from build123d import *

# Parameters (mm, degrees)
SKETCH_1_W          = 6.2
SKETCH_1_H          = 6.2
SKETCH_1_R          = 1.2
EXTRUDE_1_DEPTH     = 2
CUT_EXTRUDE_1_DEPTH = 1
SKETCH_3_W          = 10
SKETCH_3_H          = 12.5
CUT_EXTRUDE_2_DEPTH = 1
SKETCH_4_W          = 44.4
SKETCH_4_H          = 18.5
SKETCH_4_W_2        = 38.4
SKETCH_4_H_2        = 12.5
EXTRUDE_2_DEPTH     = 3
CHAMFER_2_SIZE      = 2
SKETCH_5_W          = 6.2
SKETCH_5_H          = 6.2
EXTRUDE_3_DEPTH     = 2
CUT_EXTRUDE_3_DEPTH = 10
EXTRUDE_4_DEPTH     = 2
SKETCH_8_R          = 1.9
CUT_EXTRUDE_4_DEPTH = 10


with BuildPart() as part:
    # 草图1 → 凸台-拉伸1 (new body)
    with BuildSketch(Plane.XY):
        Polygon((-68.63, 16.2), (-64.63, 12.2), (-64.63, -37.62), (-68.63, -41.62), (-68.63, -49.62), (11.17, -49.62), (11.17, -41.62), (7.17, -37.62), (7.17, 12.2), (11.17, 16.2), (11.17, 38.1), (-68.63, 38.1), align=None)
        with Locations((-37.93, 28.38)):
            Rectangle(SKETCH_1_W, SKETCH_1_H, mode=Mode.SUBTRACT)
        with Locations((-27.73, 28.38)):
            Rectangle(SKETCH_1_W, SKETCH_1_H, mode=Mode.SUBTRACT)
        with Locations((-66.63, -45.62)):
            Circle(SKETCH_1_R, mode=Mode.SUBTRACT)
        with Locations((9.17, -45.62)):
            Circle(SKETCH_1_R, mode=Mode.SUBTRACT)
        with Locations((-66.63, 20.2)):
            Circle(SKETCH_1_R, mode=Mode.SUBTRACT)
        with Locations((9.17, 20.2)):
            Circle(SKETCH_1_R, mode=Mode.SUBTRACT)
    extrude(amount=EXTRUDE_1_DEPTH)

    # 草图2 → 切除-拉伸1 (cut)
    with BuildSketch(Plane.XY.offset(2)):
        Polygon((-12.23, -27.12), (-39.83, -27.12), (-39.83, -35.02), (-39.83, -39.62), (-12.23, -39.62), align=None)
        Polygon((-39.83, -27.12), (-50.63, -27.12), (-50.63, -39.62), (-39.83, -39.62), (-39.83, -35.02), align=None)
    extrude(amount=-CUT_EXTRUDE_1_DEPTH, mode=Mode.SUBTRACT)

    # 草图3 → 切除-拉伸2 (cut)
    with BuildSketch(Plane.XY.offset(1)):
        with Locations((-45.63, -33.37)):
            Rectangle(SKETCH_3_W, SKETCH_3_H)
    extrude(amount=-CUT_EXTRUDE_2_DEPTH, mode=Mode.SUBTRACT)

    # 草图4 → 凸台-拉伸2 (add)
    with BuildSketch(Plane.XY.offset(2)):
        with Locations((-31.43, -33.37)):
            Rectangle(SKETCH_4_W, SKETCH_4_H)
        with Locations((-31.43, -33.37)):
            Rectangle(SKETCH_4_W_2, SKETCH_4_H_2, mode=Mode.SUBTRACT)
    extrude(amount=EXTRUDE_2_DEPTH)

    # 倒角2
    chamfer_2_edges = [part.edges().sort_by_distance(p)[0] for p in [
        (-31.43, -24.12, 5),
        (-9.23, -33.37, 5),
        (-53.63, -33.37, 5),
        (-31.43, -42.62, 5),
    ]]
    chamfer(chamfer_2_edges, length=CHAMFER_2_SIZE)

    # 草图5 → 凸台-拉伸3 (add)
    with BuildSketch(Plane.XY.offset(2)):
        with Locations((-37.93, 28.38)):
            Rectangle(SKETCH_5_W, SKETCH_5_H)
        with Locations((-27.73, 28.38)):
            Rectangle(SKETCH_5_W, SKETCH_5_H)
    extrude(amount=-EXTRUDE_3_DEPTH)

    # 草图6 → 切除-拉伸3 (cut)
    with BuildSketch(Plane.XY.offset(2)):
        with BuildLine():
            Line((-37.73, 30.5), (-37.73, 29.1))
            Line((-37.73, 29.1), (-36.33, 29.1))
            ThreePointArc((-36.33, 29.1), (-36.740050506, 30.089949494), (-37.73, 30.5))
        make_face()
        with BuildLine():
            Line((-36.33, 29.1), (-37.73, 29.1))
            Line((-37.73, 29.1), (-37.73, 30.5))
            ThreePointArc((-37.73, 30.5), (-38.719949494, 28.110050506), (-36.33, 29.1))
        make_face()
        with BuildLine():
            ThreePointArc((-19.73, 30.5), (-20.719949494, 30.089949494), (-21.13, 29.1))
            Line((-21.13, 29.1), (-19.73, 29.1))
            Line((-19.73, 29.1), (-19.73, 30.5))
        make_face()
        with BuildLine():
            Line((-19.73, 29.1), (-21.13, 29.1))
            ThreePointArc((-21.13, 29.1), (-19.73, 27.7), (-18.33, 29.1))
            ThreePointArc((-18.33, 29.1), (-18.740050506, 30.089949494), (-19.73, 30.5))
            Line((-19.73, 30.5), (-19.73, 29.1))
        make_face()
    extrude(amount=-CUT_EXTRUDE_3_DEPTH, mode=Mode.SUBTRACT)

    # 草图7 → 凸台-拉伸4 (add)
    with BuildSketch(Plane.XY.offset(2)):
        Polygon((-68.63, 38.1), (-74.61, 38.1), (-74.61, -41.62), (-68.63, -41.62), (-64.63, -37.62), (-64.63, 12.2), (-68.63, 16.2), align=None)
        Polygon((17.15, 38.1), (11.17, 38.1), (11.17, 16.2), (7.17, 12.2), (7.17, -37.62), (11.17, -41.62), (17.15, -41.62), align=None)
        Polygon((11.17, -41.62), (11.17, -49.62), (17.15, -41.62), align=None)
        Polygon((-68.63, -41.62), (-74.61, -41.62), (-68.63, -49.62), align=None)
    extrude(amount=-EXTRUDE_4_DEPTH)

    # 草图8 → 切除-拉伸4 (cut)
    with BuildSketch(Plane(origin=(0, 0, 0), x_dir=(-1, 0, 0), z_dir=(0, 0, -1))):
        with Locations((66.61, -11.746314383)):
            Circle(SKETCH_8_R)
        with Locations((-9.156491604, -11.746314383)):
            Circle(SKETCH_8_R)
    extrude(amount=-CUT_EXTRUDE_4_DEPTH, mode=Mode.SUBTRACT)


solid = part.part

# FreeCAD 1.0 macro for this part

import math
import FreeCAD as App
import Part
import Sketcher

V = App.Vector
Q = App.Units.Quantity


def edges_at(feature, points):
    """Names of the edges that pass closest to the given points."""
    edges = feature.Shape.Edges
    near = lambda p: min(range(len(edges)), key=lambda i: edges[i].distToShape(Part.Vertex(*p))[0])
    return sorted({f"Edge{near(p) + 1}" for p in points})

doc = App.newDocument("Part")
body = doc.addObject("PartDesign::Body", "Body")

# Sketch on XY plane
sketch1 = body.newObject("Sketcher::SketchObject", "Sketch")
sketch1.AttachmentSupport = (doc.getObject("XY_Plane"), [""])
sketch1.MapMode = "FlatFace"
sketch1.addGeometry(Part.LineSegment(V(-68.6, 16.2, 0), V(-64.6, 12.2, 0)), False)
sketch1.addGeometry(Part.LineSegment(V(-64.6, 12.2, 0), V(-64.6, -37.6, 0)), False)
sketch1.addGeometry(Part.LineSegment(V(-64.6, -37.6, 0), V(-68.6, -41.6, 0)), False)
sketch1.addGeometry(Part.LineSegment(V(-68.6, -41.6, 0), V(-68.6, -49.6, 0)), False)
sketch1.addGeometry(Part.LineSegment(V(-68.6, -49.6, 0), V(11.2, -49.6, 0)), False)
sketch1.addGeometry(Part.LineSegment(V(11.2, -49.6, 0), V(11.2, -41.6, 0)), False)
sketch1.addGeometry(Part.LineSegment(V(11.2, -41.6, 0), V(7.2, -37.6, 0)), False)
sketch1.addGeometry(Part.LineSegment(V(7.2, -37.6, 0), V(7.2, 12.2, 0)), False)
sketch1.addGeometry(Part.LineSegment(V(7.2, 12.2, 0), V(11.2, 16.2, 0)), False)
sketch1.addGeometry(Part.LineSegment(V(11.2, 16.2, 0), V(11.2, 38.1, 0)), False)
sketch1.addGeometry(Part.LineSegment(V(11.2, 38.1, 0), V(-68.6, 38.1, 0)), False)
sketch1.addGeometry(Part.LineSegment(V(-68.6, 38.1, 0), V(-68.6, 16.2, 0)), False)
sketch1.addGeometry(Part.Circle(V(-66.6, -45.6, 0), V(0, 0, 1), 1.2), False)
sketch1.addGeometry(Part.Circle(V(9.2, -45.6, 0), V(0, 0, 1), 1.2), False)
sketch1.addGeometry(Part.Circle(V(-66.6, 20.2, 0), V(0, 0, 1), 1.2), False)
sketch1.addGeometry(Part.LineSegment(V(-34.8, 25.3, 0), V(-41, 25.3, 0)), False)
sketch1.addGeometry(Part.LineSegment(V(-41, 25.3, 0), V(-41, 31.5, 0)), False)
sketch1.addGeometry(Part.LineSegment(V(-41, 31.5, 0), V(-34.8, 31.5, 0)), False)
sketch1.addGeometry(Part.LineSegment(V(-34.8, 31.5, 0), V(-34.8, 25.3, 0)), False)
sketch1.addGeometry(Part.LineSegment(V(-24.6, 25.3, 0), V(-30.8, 25.3, 0)), False)
sketch1.addGeometry(Part.LineSegment(V(-30.8, 25.3, 0), V(-30.8, 31.5, 0)), False)
sketch1.addGeometry(Part.LineSegment(V(-30.8, 31.5, 0), V(-24.6, 31.5, 0)), False)
sketch1.addGeometry(Part.LineSegment(V(-24.6, 31.5, 0), V(-24.6, 25.3, 0)), False)
sketch1.addGeometry(Part.Circle(V(9.2, 20.2, 0), V(0, 0, 1), 1.2), False)
sketch1.addConstraint(Sketcher.Constraint("Coincident", 0, 2, 1, 1))
sketch1.addConstraint(Sketcher.Constraint("Coincident", 1, 2, 2, 1))
sketch1.addConstraint(Sketcher.Constraint("Coincident", 2, 2, 3, 1))
sketch1.addConstraint(Sketcher.Constraint("Coincident", 3, 2, 4, 1))
sketch1.addConstraint(Sketcher.Constraint("Coincident", 4, 2, 5, 1))
sketch1.addConstraint(Sketcher.Constraint("Coincident", 5, 2, 6, 1))
sketch1.addConstraint(Sketcher.Constraint("Coincident", 6, 2, 7, 1))
sketch1.addConstraint(Sketcher.Constraint("Coincident", 7, 2, 8, 1))
sketch1.addConstraint(Sketcher.Constraint("Coincident", 8, 2, 9, 1))
sketch1.addConstraint(Sketcher.Constraint("Coincident", 9, 2, 10, 1))
sketch1.addConstraint(Sketcher.Constraint("Coincident", 10, 2, 11, 1))
sketch1.addConstraint(Sketcher.Constraint("Coincident", 11, 2, 0, 1))
sketch1.addConstraint(Sketcher.Constraint("Coincident", 15, 2, 16, 1))
sketch1.addConstraint(Sketcher.Constraint("Coincident", 16, 2, 17, 1))
sketch1.addConstraint(Sketcher.Constraint("Coincident", 17, 2, 18, 1))
sketch1.addConstraint(Sketcher.Constraint("Coincident", 18, 2, 15, 1))
sketch1.addConstraint(Sketcher.Constraint("Coincident", 19, 2, 20, 1))
sketch1.addConstraint(Sketcher.Constraint("Coincident", 20, 2, 21, 1))
sketch1.addConstraint(Sketcher.Constraint("Coincident", 21, 2, 22, 1))
sketch1.addConstraint(Sketcher.Constraint("Coincident", 22, 2, 19, 1))
sketch1.addConstraint(Sketcher.Constraint("Vertical", 1))
sketch1.addConstraint(Sketcher.Constraint("Vertical", 3))
sketch1.addConstraint(Sketcher.Constraint("Horizontal", 4))
sketch1.addConstraint(Sketcher.Constraint("Vertical", 5))
sketch1.addConstraint(Sketcher.Constraint("Vertical", 7))
sketch1.addConstraint(Sketcher.Constraint("Vertical", 9))
sketch1.addConstraint(Sketcher.Constraint("Horizontal", 10))
sketch1.addConstraint(Sketcher.Constraint("Vertical", 11))
sketch1.addConstraint(Sketcher.Constraint("Horizontal", 15))
sketch1.addConstraint(Sketcher.Constraint("Vertical", 16))
sketch1.addConstraint(Sketcher.Constraint("Horizontal", 17))
sketch1.addConstraint(Sketcher.Constraint("Vertical", 18))
sketch1.addConstraint(Sketcher.Constraint("Horizontal", 19))
sketch1.addConstraint(Sketcher.Constraint("Vertical", 20))
sketch1.addConstraint(Sketcher.Constraint("Horizontal", 21))
sketch1.addConstraint(Sketcher.Constraint("Vertical", 22))
sketch1.addConstraint(Sketcher.Constraint("Equal", 12, 13))
sketch1.addConstraint(Sketcher.Constraint("Equal", 13, 14))
sketch1.addConstraint(Sketcher.Constraint("Equal", 14, 23))
sketch1.addConstraint(Sketcher.Constraint("Perpendicular", 0, 2))
sketch1.addConstraint(Sketcher.Constraint("Perpendicular", 2, 6))
sketch1.addConstraint(Sketcher.Constraint("Perpendicular", 6, 8))
sketch1.addConstraint(Sketcher.Constraint("Horizontal", 12, 3, 13, 3))
sketch1.addConstraint(Sketcher.Constraint("Horizontal", 14, 3, 23, 3))
sketch1.addConstraint(Sketcher.Constraint("Horizontal", 2, 2, 5, 2))
sketch1.addConstraint(Sketcher.Constraint("Horizontal", 1, 2, 6, 2))
sketch1.addConstraint(Sketcher.Constraint("Horizontal", 0, 2, 7, 2))
sketch1.addConstraint(Sketcher.Constraint("Horizontal", 8, 2, 11, 2))
sketch1.addConstraint(Sketcher.Constraint("Horizontal", 18, 2, 19, 2))
sketch1.addConstraint(Sketcher.Constraint("Horizontal", 17, 2, 20, 2))
sketch1.addConstraint(Sketcher.Constraint("Vertical", 12, 3, 14, 3))
sketch1.addConstraint(Sketcher.Constraint("Vertical", 13, 3, 23, 3))
sketch1.addConstraint(Sketcher.Constraint("Vertical", 5, 2, 8, 2))
sketch1.addConstraint(Sketcher.Constraint("Vertical", 3, 2, 10, 2))
sketch1.addConstraint(Sketcher.Constraint("Equal", 17, 19))
sketch1.addConstraint(Sketcher.Constraint("Equal", 21, 16))
sketch1.addConstraint(Sketcher.Constraint("Diameter", 12, Q("2.4 mm")))
sketch1.addConstraint(Sketcher.Constraint("DistanceY", 3, 2, 3, 1, Q("8 mm")))
sketch1.addConstraint(Sketcher.Constraint("DistanceX", 4, 1, 4, 2, Q("79.8 mm")))
sketch1.addConstraint(Sketcher.Constraint("DistanceX", 15, 2, 15, 1, Q("6.2 mm")))
sketch1.addConstraint(Sketcher.Constraint("DistanceY", 9, 1, 9, 2, Q("21.9 mm")))
sketch1.addConstraint(Sketcher.Constraint("DistanceX", 14, 3, 0, 2, Q("2 mm")))
sketch1.addConstraint(Sketcher.Constraint("DistanceY", 0, 2, 14, 3, Q("8 mm")))
sketch1.addConstraint(Sketcher.Constraint("DistanceY", 12, 3, 1, 2, Q("8 mm")))
sketch1.addConstraint(Sketcher.Constraint("DistanceX", 2, 2, 12, 3, Q("2 mm")))
sketch1.addConstraint(Sketcher.Constraint("DistanceX", 13, 3, 4, 2, Q("2 mm")))
sketch1.addConstraint(Sketcher.Constraint("DistanceX", 18, 2, 19, 2, Q("4 mm")))
sketch1.addConstraint(Sketcher.Constraint("DistanceY", 1, 2, 1, 1, Q("49.82 mm")))
sketch1.addConstraint(Sketcher.Constraint("DistanceY", -1, 1, 14, 3, Q("20.2 mm")))
sketch1.addConstraint(Sketcher.Constraint("DistanceX", 14, 3, 15, 2, Q("25.6 mm")))
sketch1.addConstraint(Sketcher.Constraint("DistanceX", 12, 3, -1, 1, Q("66.63 mm")))
sketch1.addConstraint(Sketcher.Constraint("DistanceY", -1, 1, 15, 2, Q("25.28 mm")))
pad1 = body.newObject("PartDesign::Pad", "Pad")
pad1.Profile = sketch1
pad1.Length = 2

# Sketch on XY plane
sketch2 = body.newObject("Sketcher::SketchObject", "Sketch001")
sketch2.AttachmentSupport = (doc.getObject("XY_Plane"), [""])
sketch2.MapMode = "FlatFace"
sketch2.AttachmentOffset = App.Placement(V(0, 0, 2), App.Rotation())
sketch2.addGeometry(Part.LineSegment(V(-12, -27, 0), V(-51, -27, 0)), False)
sketch2.addGeometry(Part.LineSegment(V(-51, -27, 0), V(-51, -40, 0)), False)
sketch2.addGeometry(Part.LineSegment(V(-51, -40, 0), V(-12, -40, 0)), False)
sketch2.addGeometry(Part.LineSegment(V(-12, -40, 0), V(-12, -27, 0)), False)
sketch2.addConstraint(Sketcher.Constraint("Coincident", 0, 2, 1, 1))
sketch2.addConstraint(Sketcher.Constraint("Coincident", 1, 2, 2, 1))
sketch2.addConstraint(Sketcher.Constraint("Coincident", 2, 2, 3, 1))
sketch2.addConstraint(Sketcher.Constraint("Coincident", 3, 2, 0, 1))
sketch2.addConstraint(Sketcher.Constraint("Horizontal", 0))
sketch2.addConstraint(Sketcher.Constraint("Vertical", 1))
sketch2.addConstraint(Sketcher.Constraint("Horizontal", 2))
sketch2.addConstraint(Sketcher.Constraint("Vertical", 3))
sketch2.addConstraint(Sketcher.Constraint("DistanceX", 0, 2, 0, 1, Q("38.4 mm")))
sketch2.addConstraint(Sketcher.Constraint("DistanceY", 1, 2, 1, 1, Q("12.5 mm")))
sketch2.addConstraint(Sketcher.Constraint("DistanceX", 0, 2, -1, 1, Q("50.63 mm")))
sketch2.addConstraint(Sketcher.Constraint("DistanceY", 0, 2, -1, 1, Q("27.12 mm")))
pocket1 = body.newObject("PartDesign::Pocket", "Pocket")
pocket1.Profile = sketch2
pocket1.Length = 1

# Sketch on XY plane
sketch3 = body.newObject("Sketcher::SketchObject", "Sketch002")
sketch3.AttachmentSupport = (doc.getObject("XY_Plane"), [""])
sketch3.MapMode = "FlatFace"
sketch3.AttachmentOffset = App.Placement(V(0, 0, 1), App.Rotation())
sketch3.addGeometry(Part.LineSegment(V(-51, -27, 0), V(-51, -40, 0)), False)
sketch3.addGeometry(Part.LineSegment(V(-51, -40, 0), V(-41, -40, 0)), False)
sketch3.addGeometry(Part.LineSegment(V(-41, -40, 0), V(-41, -27, 0)), False)
sketch3.addGeometry(Part.LineSegment(V(-41, -27, 0), V(-51, -27, 0)), False)
sketch3.addConstraint(Sketcher.Constraint("Coincident", 0, 2, 1, 1))
sketch3.addConstraint(Sketcher.Constraint("Coincident", 1, 2, 2, 1))
sketch3.addConstraint(Sketcher.Constraint("Coincident", 2, 2, 3, 1))
sketch3.addConstraint(Sketcher.Constraint("Coincident", 3, 2, 0, 1))
sketch3.addConstraint(Sketcher.Constraint("Vertical", 0))
sketch3.addConstraint(Sketcher.Constraint("Horizontal", 1))
sketch3.addConstraint(Sketcher.Constraint("Vertical", 2))
sketch3.addConstraint(Sketcher.Constraint("Horizontal", 3))
sketch3.addConstraint(Sketcher.Constraint("DistanceX", 1, 1, 1, 2, Q("10 mm")))
sketch3.addConstraint(Sketcher.Constraint("DistanceY", 0, 2, 0, 1, Q("12.5 mm")))
sketch3.addConstraint(Sketcher.Constraint("DistanceX", 0, 2, -1, 1, Q("50.63 mm")))
sketch3.addConstraint(Sketcher.Constraint("DistanceY", 0, 2, -1, 1, Q("39.62 mm")))
pocket2 = body.newObject("PartDesign::Pocket", "Pocket001")
pocket2.Profile = sketch3
pocket2.Length = 1

# Sketch on XY plane
sketch4 = body.newObject("Sketcher::SketchObject", "Sketch003")
sketch4.AttachmentSupport = (doc.getObject("XY_Plane"), [""])
sketch4.MapMode = "FlatFace"
sketch4.AttachmentOffset = App.Placement(V(0, 0, 2), App.Rotation())
sketch4.addGeometry(Part.LineSegment(V(-54, -24, 0), V(-54, -43, 0)), False)
sketch4.addGeometry(Part.LineSegment(V(-54, -43, 0), V(-9, -43, 0)), False)
sketch4.addGeometry(Part.LineSegment(V(-9, -43, 0), V(-9, -24, 0)), False)
sketch4.addGeometry(Part.LineSegment(V(-9, -24, 0), V(-54, -24, 0)), False)
sketch4.addGeometry(Part.LineSegment(V(-12, -40, 0), V(-51, -40, 0)), False)
sketch4.addGeometry(Part.LineSegment(V(-51, -40, 0), V(-51, -27, 0)), False)
sketch4.addGeometry(Part.LineSegment(V(-51, -27, 0), V(-12, -27, 0)), False)
sketch4.addGeometry(Part.LineSegment(V(-12, -27, 0), V(-12, -40, 0)), False)
sketch4.addConstraint(Sketcher.Constraint("Coincident", 0, 2, 1, 1))
sketch4.addConstraint(Sketcher.Constraint("Coincident", 1, 2, 2, 1))
sketch4.addConstraint(Sketcher.Constraint("Coincident", 2, 2, 3, 1))
sketch4.addConstraint(Sketcher.Constraint("Coincident", 3, 2, 0, 1))
sketch4.addConstraint(Sketcher.Constraint("Coincident", 4, 2, 5, 1))
sketch4.addConstraint(Sketcher.Constraint("Coincident", 5, 2, 6, 1))
sketch4.addConstraint(Sketcher.Constraint("Coincident", 6, 2, 7, 1))
sketch4.addConstraint(Sketcher.Constraint("Coincident", 7, 2, 4, 1))
sketch4.addConstraint(Sketcher.Constraint("Vertical", 0))
sketch4.addConstraint(Sketcher.Constraint("Horizontal", 1))
sketch4.addConstraint(Sketcher.Constraint("Vertical", 2))
sketch4.addConstraint(Sketcher.Constraint("Horizontal", 3))
sketch4.addConstraint(Sketcher.Constraint("Horizontal", 4))
sketch4.addConstraint(Sketcher.Constraint("Vertical", 5))
sketch4.addConstraint(Sketcher.Constraint("Horizontal", 6))
sketch4.addConstraint(Sketcher.Constraint("Vertical", 7))
sketch4.addConstraint(Sketcher.Constraint("DistanceX", 1, 1, 1, 2, Q("44.4 mm")))
sketch4.addConstraint(Sketcher.Constraint("DistanceX", 4, 2, 4, 1, Q("38.4 mm")))
sketch4.addConstraint(Sketcher.Constraint("DistanceY", 0, 2, 0, 1, Q("18.5 mm")))
sketch4.addConstraint(Sketcher.Constraint("DistanceY", 5, 1, 5, 2, Q("12.5 mm")))
sketch4.addConstraint(Sketcher.Constraint("DistanceX", 0, 2, 4, 2, Q("3 mm")))
sketch4.addConstraint(Sketcher.Constraint("DistanceY", 0, 2, 4, 2, Q("3 mm")))
sketch4.addConstraint(Sketcher.Constraint("DistanceX", 0, 2, -1, 1, Q("53.63 mm")))
sketch4.addConstraint(Sketcher.Constraint("DistanceY", 0, 2, -1, 1, Q("42.62 mm")))
pad2 = body.newObject("PartDesign::Pad", "Pad001")
pad2.Profile = sketch4
pad2.Length = 3
doc.recompute()

chamfer = body.newObject("PartDesign::Chamfer", "Chamfer")
chamfer.Base = (pad2, edges_at(pad2, [
    (-31.43, -24.12, 5),
    (-9.23, -33.37, 5),
    (-53.63, -33.37, 5),
    (-31.43, -42.62, 5),
]))
chamfer.Size = 2

# Sketch on XY plane
sketch5 = body.newObject("Sketcher::SketchObject", "Sketch004")
sketch5.AttachmentSupport = (doc.getObject("XY_Plane"), [""])
sketch5.MapMode = "FlatFace"
sketch5.AttachmentOffset = App.Placement(V(0, 0, 2), App.Rotation())
sketch5.addGeometry(Part.LineSegment(V(-41, 31, 0), V(-41, 25, 0)), False)
sketch5.addGeometry(Part.LineSegment(V(-41, 25, 0), V(-35, 25, 0)), False)
sketch5.addGeometry(Part.LineSegment(V(-35, 25, 0), V(-35, 31, 0)), False)
sketch5.addGeometry(Part.LineSegment(V(-35, 31, 0), V(-41, 31, 0)), False)
sketch5.addGeometry(Part.LineSegment(V(-31, 31, 0), V(-31, 25, 0)), False)
sketch5.addGeometry(Part.LineSegment(V(-31, 25, 0), V(-25, 25, 0)), False)
sketch5.addGeometry(Part.LineSegment(V(-25, 25, 0), V(-25, 31, 0)), False)
sketch5.addGeometry(Part.LineSegment(V(-25, 31, 0), V(-31, 31, 0)), False)
sketch5.addConstraint(Sketcher.Constraint("Coincident", 0, 2, 1, 1))
sketch5.addConstraint(Sketcher.Constraint("Coincident", 1, 2, 2, 1))
sketch5.addConstraint(Sketcher.Constraint("Coincident", 2, 2, 3, 1))
sketch5.addConstraint(Sketcher.Constraint("Coincident", 3, 2, 0, 1))
sketch5.addConstraint(Sketcher.Constraint("Coincident", 4, 2, 5, 1))
sketch5.addConstraint(Sketcher.Constraint("Coincident", 5, 2, 6, 1))
sketch5.addConstraint(Sketcher.Constraint("Coincident", 6, 2, 7, 1))
sketch5.addConstraint(Sketcher.Constraint("Coincident", 7, 2, 4, 1))
sketch5.addConstraint(Sketcher.Constraint("Vertical", 0))
sketch5.addConstraint(Sketcher.Constraint("Horizontal", 1))
sketch5.addConstraint(Sketcher.Constraint("Vertical", 2))
sketch5.addConstraint(Sketcher.Constraint("Horizontal", 3))
sketch5.addConstraint(Sketcher.Constraint("Vertical", 4))
sketch5.addConstraint(Sketcher.Constraint("Horizontal", 5))
sketch5.addConstraint(Sketcher.Constraint("Vertical", 6))
sketch5.addConstraint(Sketcher.Constraint("Horizontal", 7))
sketch5.addConstraint(Sketcher.Constraint("Horizontal", 1, 2, 4, 2))
sketch5.addConstraint(Sketcher.Constraint("Horizontal", 3, 2, 6, 2))
sketch5.addConstraint(Sketcher.Constraint("Equal", 3, 5))
sketch5.addConstraint(Sketcher.Constraint("Equal", 7, 0))
sketch5.addConstraint(Sketcher.Constraint("DistanceX", 1, 1, 1, 2, Q("6.2 mm")))
sketch5.addConstraint(Sketcher.Constraint("DistanceX", 1, 2, 4, 2, Q("4 mm")))
sketch5.addConstraint(Sketcher.Constraint("DistanceX", 0, 2, -1, 1, Q("41.03 mm")))
sketch5.addConstraint(Sketcher.Constraint("DistanceY", -1, 1, 0, 2, Q("25.28 mm")))
pad3 = body.newObject("PartDesign::Pad", "Pad002")
pad3.Profile = sketch5
pad3.Length = 2
pad3.Reversed = True

# Sketch on XY plane
sketch6 = body.newObject("Sketcher::SketchObject", "Sketch005")
sketch6.AttachmentSupport = (doc.getObject("XY_Plane"), [""])
sketch6.MapMode = "FlatFace"
sketch6.AttachmentOffset = App.Placement(V(0, 0, 2), App.Rotation())
sketch6.addGeometry(Part.ArcOfCircle(Part.Circle(V(-37.7, 29.1, 0), V(0, 0, 1), 1.4), math.radians(0), math.radians(90)), False)
sketch6.addGeometry(Part.ArcOfCircle(Part.Circle(V(-37.7, 29.1, 0), V(0, 0, 1), 1.4), math.radians(90), math.radians(360)), False)
sketch6.addGeometry(Part.ArcOfCircle(Part.Circle(V(-19.7, 29.1, 0), V(0, 0, 1), 1.4), math.radians(90), math.radians(180)), False)
sketch6.addGeometry(Part.ArcOfCircle(Part.Circle(V(-19.7, 29.1, 0), V(0, 0, 1), 1.4), math.radians(180), math.radians(360)), False)
sketch6.addGeometry(Part.ArcOfCircle(Part.Circle(V(-19.7, 29.1, 0), V(0, 0, 1), 1.4), math.radians(0), math.radians(90)), False)
sketch6.addConstraint(Sketcher.Constraint("Tangent", 0, 1, 1, 2))
sketch6.addConstraint(Sketcher.Constraint("Coincident", 1, 1, 0, 2))
sketch6.addConstraint(Sketcher.Constraint("Tangent", 2, 2, 3, 1))
sketch6.addConstraint(Sketcher.Constraint("Tangent", 3, 2, 4, 1))
sketch6.addConstraint(Sketcher.Constraint("Tangent", 4, 2, 2, 1))
sketch6.addConstraint(Sketcher.Constraint("Equal", 1, 2))
sketch6.addConstraint(Sketcher.Constraint("Horizontal", 1, 3, 2, 3))
sketch6.addConstraint(Sketcher.Constraint("Horizontal", 4, 3, 0, 1))
sketch6.addConstraint(Sketcher.Constraint("Horizontal", 0, 1, 2, 2))
sketch6.addConstraint(Sketcher.Constraint("Horizontal", 2, 2, 3, 2))
sketch6.addConstraint(Sketcher.Constraint("Vertical", 0, 3, 1, 1))
sketch6.addConstraint(Sketcher.Constraint("Vertical", 3, 3, 4, 2))
sketch6.addConstraint(Sketcher.Constraint("Radius", 0, Q("1.4 mm")))
sketch6.addConstraint(Sketcher.Constraint("DistanceX", 0, 3, 2, 3, Q("18 mm")))
sketch6.addConstraint(Sketcher.Constraint("DistanceY", -1, 1, 0, 3, Q("29.1 mm")))
sketch6.addConstraint(Sketcher.Constraint("DistanceX", 0, 3, -1, 1, Q("37.73 mm")))
pocket3 = body.newObject("PartDesign::Pocket", "Pocket002")
pocket3.Profile = sketch6
pocket3.Length = 10

# Sketch on XY plane
sketch7 = body.newObject("Sketcher::SketchObject", "Sketch006")
sketch7.AttachmentSupport = (doc.getObject("XY_Plane"), [""])
sketch7.MapMode = "FlatFace"
sketch7.AttachmentOffset = App.Placement(V(0, 0, 2), App.Rotation())
sketch7.addGeometry(Part.LineSegment(V(-69, 38, 0), V(-75, 38, 0)), False)
sketch7.addGeometry(Part.LineSegment(V(-75, 38, 0), V(-75, -42, 0)), False)
sketch7.addGeometry(Part.LineSegment(V(-75, -42, 0), V(-69, -50, 0)), False)
sketch7.addGeometry(Part.LineSegment(V(-69, -50, 0), V(-69, -42, 0)), False)
sketch7.addGeometry(Part.LineSegment(V(-69, -42, 0), V(-65, -38, 0)), False)
sketch7.addGeometry(Part.LineSegment(V(-65, -38, 0), V(-65, 12, 0)), False)
sketch7.addGeometry(Part.LineSegment(V(-65, 12, 0), V(-69, 16, 0)), False)
sketch7.addGeometry(Part.LineSegment(V(-69, 16, 0), V(-69, 38, 0)), False)
sketch7.addGeometry(Part.LineSegment(V(17, 38, 0), V(11, 38, 0)), False)
sketch7.addGeometry(Part.LineSegment(V(11, 38, 0), V(11, 16, 0)), False)
sketch7.addGeometry(Part.LineSegment(V(11, 16, 0), V(7, 12, 0)), False)
sketch7.addGeometry(Part.LineSegment(V(7, 12, 0), V(7, -38, 0)), False)
sketch7.addGeometry(Part.LineSegment(V(7, -38, 0), V(11, -42, 0)), False)
sketch7.addGeometry(Part.LineSegment(V(11, -42, 0), V(11, -50, 0)), False)
sketch7.addGeometry(Part.LineSegment(V(11, -50, 0), V(17, -42, 0)), False)
sketch7.addGeometry(Part.LineSegment(V(17, -42, 0), V(17, 38, 0)), False)
sketch7.addConstraint(Sketcher.Constraint("Coincident", 0, 2, 1, 1))
sketch7.addConstraint(Sketcher.Constraint("Coincident", 1, 2, 2, 1))
sketch7.addConstraint(Sketcher.Constraint("Coincident", 2, 2, 3, 1))
sketch7.addConstraint(Sketcher.Constraint("Coincident", 3, 2, 4, 1))
sketch7.addConstraint(Sketcher.Constraint("Coincident", 4, 2, 5, 1))
sketch7.addConstraint(Sketcher.Constraint("Coincident", 5, 2, 6, 1))
sketch7.addConstraint(Sketcher.Constraint("Coincident", 6, 2, 7, 1))
sketch7.addConstraint(Sketcher.Constraint("Coincident", 7, 2, 0, 1))
sketch7.addConstraint(Sketcher.Constraint("Coincident", 8, 2, 9, 1))
sketch7.addConstraint(Sketcher.Constraint("Coincident", 9, 2, 10, 1))
sketch7.addConstraint(Sketcher.Constraint("Coincident", 10, 2, 11, 1))
sketch7.addConstraint(Sketcher.Constraint("Coincident", 11, 2, 12, 1))
sketch7.addConstraint(Sketcher.Constraint("Coincident", 12, 2, 13, 1))
sketch7.addConstraint(Sketcher.Constraint("Coincident", 13, 2, 14, 1))
sketch7.addConstraint(Sketcher.Constraint("Coincident", 14, 2, 15, 1))
sketch7.addConstraint(Sketcher.Constraint("Coincident", 15, 2, 8, 1))
sketch7.addConstraint(Sketcher.Constraint("Horizontal", 0))
sketch7.addConstraint(Sketcher.Constraint("Vertical", 1))
sketch7.addConstraint(Sketcher.Constraint("Vertical", 3))
sketch7.addConstraint(Sketcher.Constraint("Vertical", 5))
sketch7.addConstraint(Sketcher.Constraint("Vertical", 7))
sketch7.addConstraint(Sketcher.Constraint("Horizontal", 8))
sketch7.addConstraint(Sketcher.Constraint("Vertical", 9))
sketch7.addConstraint(Sketcher.Constraint("Vertical", 11))
sketch7.addConstraint(Sketcher.Constraint("Vertical", 13))
sketch7.addConstraint(Sketcher.Constraint("Vertical", 15))
sketch7.addConstraint(Sketcher.Constraint("Perpendicular", 4, 6))
sketch7.addConstraint(Sketcher.Constraint("Perpendicular", 6, 10))
sketch7.addConstraint(Sketcher.Constraint("Perpendicular", 10, 12))
sketch7.addConstraint(Sketcher.Constraint("Horizontal", 1, 2, 3, 2))
sketch7.addConstraint(Sketcher.Constraint("Horizontal", 7, 2, 8, 2))
sketch7.addConstraint(Sketcher.Constraint("Horizontal", 6, 2, 9, 2))
sketch7.addConstraint(Sketcher.Constraint("Horizontal", 5, 2, 10, 2))
sketch7.addConstraint(Sketcher.Constraint("Horizontal", 4, 2, 11, 2))
sketch7.addConstraint(Sketcher.Constraint("Horizontal", 3, 2, 12, 2))
sketch7.addConstraint(Sketcher.Constraint("Horizontal", 2, 2, 13, 2))
sketch7.addConstraint(Sketcher.Constraint("Horizontal", 12, 2, 14, 2))
sketch7.addConstraint(Sketcher.Constraint("Vertical", 3, 2, 6, 2))
sketch7.addConstraint(Sketcher.Constraint("Vertical", 9, 2, 12, 2))
sketch7.addConstraint(Sketcher.Constraint("Equal", 0, 8))
sketch7.addConstraint(Sketcher.Constraint("DistanceY", 3, 1, 3, 2, Q("8 mm")))
sketch7.addConstraint(Sketcher.Constraint("DistanceY", 7, 1, 7, 2, Q("21.9 mm")))
sketch7.addConstraint(Sketcher.Constraint("DistanceX", 3, 2, 4, 2, Q("4 mm")))
sketch7.addConstraint(Sketcher.Constraint("DistanceX", 0, 2, 0, 1, Q("5.98 mm")))
sketch7.addConstraint(Sketcher.Constraint("DistanceY", 1, 2, 1, 1, Q("79.72 mm")))
sketch7.addConstraint(Sketcher.Constraint("DistanceY", -1, 1, 0, 2, Q("38.1 mm")))
sketch7.addConstraint(Sketcher.Constraint("DistanceX", 7, 2, 8, 2, Q("79.8 mm")))
sketch7.addConstraint(Sketcher.Constraint("DistanceX", 0, 2, -1, 1, Q("74.61 mm")))
pad4 = body.newObject("PartDesign::Pad", "Pad003")
pad4.Profile = sketch7
pad4.Length = 2
pad4.Reversed = True

# Sketch on XY plane
sketch8 = body.newObject("Sketcher::SketchObject", "Sketch007")
sketch8.AttachmentSupport = (doc.getObject("XY_Plane"), [""])
sketch8.MapMode = "FlatFace"
sketch8.addGeometry(Part.Circle(V(-66.6, -11.7, 0), V(0, 0, 1), 1.9), False)
sketch8.addGeometry(Part.Circle(V(9.2, -11.7, 0), V(0, 0, 1), 1.9), False)
sketch8.addConstraint(Sketcher.Constraint("Equal", 0, 1))
sketch8.addConstraint(Sketcher.Constraint("Horizontal", 0, 3, 1, 3))
sketch8.addConstraint(Sketcher.Constraint("Diameter", 0, Q("3.8 mm")))
sketch8.addConstraint(Sketcher.Constraint("DistanceX", 0, 3, -1, 1, Q("66.61 mm")))
sketch8.addConstraint(Sketcher.Constraint("DistanceX", -1, 1, 1, 3, Q("9.156492 mm")))
sketch8.addConstraint(Sketcher.Constraint("DistanceY", 0, 3, -1, 1, Q("11.746314 mm")))
pocket4 = body.newObject("PartDesign::Pocket", "Pocket003")
pocket4.Profile = sketch8
pocket4.Length = 10
pocket4.Reversed = True

doc.recompute()
